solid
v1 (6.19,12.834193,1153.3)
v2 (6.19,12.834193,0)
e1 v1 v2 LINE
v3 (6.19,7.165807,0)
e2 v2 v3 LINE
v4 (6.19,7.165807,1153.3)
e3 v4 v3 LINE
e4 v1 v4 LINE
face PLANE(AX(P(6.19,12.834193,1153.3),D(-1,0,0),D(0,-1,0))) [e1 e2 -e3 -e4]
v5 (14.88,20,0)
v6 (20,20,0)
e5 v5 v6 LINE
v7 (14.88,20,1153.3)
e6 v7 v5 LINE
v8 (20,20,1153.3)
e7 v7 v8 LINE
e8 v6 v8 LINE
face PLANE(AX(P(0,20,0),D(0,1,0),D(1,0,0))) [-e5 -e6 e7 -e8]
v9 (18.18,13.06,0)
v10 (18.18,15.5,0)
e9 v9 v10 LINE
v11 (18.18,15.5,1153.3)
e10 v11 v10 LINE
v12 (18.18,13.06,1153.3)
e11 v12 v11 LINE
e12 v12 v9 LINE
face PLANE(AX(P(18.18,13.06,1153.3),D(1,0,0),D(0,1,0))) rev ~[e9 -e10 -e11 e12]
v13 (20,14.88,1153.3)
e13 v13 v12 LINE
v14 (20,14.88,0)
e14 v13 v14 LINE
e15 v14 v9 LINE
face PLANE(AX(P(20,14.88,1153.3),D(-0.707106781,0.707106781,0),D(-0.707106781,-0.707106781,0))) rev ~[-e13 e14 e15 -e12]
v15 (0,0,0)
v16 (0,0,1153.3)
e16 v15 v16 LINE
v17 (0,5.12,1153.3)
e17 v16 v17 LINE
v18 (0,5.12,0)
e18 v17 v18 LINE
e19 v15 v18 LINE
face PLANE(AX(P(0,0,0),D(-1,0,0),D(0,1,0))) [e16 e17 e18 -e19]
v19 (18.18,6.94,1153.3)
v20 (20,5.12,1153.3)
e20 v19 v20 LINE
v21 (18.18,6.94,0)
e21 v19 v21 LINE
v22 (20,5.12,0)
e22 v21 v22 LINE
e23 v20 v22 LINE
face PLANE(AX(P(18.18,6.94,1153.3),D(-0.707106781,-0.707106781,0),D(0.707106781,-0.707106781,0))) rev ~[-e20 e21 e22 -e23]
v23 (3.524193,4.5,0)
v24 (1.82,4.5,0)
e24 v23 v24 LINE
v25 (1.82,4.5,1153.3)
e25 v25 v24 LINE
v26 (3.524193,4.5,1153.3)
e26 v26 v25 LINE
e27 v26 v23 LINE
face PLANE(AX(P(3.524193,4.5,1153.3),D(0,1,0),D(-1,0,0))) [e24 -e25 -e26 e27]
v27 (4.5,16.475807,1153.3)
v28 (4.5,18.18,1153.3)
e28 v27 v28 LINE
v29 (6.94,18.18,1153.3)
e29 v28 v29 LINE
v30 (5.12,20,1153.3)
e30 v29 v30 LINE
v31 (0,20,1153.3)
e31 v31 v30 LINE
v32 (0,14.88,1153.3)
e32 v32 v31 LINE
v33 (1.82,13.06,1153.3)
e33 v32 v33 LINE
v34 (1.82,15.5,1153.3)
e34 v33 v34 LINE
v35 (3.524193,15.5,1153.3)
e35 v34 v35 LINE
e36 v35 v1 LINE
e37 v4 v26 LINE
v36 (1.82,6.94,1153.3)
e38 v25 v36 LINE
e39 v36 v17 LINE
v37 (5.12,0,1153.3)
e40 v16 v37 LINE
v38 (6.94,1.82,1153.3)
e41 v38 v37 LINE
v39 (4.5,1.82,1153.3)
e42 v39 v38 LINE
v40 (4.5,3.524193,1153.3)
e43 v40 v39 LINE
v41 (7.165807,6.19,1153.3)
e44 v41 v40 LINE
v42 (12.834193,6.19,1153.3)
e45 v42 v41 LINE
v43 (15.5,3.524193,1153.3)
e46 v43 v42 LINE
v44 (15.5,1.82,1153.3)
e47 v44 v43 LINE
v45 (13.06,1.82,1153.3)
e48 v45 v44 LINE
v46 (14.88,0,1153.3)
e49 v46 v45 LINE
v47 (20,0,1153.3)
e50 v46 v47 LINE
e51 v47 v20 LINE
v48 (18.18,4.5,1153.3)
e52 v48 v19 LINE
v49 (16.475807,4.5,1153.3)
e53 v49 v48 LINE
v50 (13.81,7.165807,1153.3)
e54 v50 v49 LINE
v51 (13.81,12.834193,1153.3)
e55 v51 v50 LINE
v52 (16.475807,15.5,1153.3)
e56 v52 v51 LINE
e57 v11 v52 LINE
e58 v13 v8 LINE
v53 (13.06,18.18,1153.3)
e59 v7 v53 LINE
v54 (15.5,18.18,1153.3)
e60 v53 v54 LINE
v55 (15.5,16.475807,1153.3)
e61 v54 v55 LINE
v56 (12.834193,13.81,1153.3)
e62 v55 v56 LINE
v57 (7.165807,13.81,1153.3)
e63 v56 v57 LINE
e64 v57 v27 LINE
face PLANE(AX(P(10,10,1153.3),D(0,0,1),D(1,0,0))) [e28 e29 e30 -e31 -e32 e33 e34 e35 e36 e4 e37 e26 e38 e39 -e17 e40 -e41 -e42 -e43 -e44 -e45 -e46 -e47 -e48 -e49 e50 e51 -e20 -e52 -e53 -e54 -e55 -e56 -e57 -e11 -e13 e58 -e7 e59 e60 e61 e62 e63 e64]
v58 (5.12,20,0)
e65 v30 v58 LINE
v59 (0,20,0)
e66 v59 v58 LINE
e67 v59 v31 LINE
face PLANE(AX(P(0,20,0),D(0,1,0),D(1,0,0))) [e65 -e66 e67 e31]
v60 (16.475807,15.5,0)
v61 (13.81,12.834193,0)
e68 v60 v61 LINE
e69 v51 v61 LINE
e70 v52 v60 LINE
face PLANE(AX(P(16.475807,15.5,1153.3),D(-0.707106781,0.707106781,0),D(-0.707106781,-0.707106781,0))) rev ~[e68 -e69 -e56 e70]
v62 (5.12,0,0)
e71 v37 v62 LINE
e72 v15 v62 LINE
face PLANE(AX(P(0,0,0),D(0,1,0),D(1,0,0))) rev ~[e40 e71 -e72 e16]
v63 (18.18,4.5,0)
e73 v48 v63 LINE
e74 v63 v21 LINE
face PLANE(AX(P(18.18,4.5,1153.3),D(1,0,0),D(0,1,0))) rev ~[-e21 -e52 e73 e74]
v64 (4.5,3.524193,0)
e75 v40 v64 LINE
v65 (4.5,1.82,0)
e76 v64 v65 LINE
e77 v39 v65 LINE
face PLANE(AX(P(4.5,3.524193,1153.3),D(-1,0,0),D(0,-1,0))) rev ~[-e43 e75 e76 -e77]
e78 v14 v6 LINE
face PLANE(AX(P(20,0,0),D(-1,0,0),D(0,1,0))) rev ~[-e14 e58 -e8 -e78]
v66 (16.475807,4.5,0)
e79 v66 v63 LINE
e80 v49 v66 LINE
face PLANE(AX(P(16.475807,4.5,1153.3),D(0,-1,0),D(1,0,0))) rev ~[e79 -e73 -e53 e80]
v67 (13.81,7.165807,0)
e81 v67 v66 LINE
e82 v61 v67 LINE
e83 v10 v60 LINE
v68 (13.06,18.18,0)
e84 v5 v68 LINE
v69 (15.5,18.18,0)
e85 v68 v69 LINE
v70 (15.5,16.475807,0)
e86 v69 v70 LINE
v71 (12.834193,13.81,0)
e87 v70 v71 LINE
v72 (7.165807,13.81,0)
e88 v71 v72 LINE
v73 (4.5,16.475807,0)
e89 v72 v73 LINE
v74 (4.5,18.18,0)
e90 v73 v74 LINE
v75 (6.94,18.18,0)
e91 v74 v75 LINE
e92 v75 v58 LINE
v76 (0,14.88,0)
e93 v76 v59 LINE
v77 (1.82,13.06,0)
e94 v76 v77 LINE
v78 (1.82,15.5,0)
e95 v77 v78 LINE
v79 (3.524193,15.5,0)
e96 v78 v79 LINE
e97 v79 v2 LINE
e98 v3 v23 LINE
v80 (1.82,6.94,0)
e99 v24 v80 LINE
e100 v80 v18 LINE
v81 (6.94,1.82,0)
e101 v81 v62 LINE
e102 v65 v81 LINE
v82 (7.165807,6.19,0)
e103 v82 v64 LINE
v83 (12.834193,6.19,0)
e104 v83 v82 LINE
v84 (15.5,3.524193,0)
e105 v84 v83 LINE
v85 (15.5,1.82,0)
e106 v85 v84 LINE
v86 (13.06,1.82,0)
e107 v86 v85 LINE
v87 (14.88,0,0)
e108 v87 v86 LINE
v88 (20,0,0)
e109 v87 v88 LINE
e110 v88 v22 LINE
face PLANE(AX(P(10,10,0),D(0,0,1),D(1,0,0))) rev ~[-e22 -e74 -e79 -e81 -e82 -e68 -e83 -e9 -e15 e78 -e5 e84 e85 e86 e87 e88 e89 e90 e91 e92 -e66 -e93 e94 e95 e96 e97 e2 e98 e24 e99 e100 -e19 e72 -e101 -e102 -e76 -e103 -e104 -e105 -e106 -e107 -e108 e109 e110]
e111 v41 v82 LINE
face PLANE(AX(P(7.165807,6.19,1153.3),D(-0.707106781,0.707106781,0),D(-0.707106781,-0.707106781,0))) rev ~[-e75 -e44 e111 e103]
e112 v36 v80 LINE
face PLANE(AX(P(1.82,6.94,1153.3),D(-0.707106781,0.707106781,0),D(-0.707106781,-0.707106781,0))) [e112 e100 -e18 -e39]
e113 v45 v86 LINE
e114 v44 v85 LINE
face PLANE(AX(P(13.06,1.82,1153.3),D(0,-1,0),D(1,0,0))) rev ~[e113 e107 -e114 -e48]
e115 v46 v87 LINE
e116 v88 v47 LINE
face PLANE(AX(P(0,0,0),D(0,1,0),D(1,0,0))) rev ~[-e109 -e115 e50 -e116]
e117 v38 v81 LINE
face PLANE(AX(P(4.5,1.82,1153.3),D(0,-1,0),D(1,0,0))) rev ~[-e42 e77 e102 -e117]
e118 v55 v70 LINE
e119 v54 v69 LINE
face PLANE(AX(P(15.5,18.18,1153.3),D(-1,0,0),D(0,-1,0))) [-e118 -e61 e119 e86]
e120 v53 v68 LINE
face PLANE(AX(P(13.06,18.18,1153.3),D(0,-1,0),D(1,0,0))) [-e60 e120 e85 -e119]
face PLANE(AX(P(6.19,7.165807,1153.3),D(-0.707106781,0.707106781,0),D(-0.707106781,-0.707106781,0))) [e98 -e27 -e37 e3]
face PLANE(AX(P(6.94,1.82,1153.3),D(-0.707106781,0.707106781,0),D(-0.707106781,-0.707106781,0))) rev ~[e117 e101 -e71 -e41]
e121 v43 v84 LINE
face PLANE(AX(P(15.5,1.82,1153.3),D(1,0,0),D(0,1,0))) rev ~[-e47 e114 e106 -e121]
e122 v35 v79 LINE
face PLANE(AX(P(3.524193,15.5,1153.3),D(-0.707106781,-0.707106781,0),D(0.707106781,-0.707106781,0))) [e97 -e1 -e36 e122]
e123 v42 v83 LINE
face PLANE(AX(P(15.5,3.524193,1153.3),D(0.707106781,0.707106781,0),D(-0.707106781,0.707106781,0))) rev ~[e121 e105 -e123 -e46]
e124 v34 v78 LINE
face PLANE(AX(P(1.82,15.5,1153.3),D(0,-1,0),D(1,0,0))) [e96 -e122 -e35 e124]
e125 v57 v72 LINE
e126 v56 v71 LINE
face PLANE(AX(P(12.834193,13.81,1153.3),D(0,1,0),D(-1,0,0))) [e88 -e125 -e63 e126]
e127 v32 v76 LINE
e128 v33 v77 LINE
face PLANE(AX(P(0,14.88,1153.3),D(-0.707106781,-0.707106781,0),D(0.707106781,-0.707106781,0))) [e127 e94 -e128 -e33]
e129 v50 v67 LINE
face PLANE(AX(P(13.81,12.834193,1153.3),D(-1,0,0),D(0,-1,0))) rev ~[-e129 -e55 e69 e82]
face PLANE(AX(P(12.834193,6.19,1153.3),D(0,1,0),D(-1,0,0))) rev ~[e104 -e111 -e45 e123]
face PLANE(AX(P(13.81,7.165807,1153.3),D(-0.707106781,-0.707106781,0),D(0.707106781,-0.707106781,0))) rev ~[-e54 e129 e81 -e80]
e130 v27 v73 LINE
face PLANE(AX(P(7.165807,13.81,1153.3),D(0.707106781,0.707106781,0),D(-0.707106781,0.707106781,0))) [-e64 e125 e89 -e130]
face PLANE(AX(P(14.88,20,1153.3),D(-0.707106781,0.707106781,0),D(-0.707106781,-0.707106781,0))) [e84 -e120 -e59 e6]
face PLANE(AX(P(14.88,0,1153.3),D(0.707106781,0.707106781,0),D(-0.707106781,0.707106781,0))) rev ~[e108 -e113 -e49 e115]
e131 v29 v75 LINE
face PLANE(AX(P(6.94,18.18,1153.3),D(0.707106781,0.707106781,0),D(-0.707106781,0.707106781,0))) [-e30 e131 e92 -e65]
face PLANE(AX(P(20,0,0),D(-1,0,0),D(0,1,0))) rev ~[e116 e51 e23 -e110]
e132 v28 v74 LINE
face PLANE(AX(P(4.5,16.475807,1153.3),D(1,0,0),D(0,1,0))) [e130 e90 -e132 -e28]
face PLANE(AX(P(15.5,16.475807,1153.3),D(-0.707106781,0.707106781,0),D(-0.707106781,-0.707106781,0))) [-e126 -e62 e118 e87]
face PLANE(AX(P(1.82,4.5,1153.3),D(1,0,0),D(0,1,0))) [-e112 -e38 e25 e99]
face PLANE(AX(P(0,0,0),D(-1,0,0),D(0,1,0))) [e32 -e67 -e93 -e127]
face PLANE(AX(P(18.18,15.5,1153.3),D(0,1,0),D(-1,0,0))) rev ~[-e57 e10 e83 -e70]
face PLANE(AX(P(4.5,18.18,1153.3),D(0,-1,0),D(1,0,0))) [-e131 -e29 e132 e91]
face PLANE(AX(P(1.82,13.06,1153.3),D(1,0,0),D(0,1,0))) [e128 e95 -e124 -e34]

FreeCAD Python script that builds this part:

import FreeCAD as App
import Part
import Sketcher
from FreeCAD import Vector

doc = App.newDocument("Part")
body = doc.addObject("PartDesign::Body", "Body")

sketch1 = body.newObject("Sketcher::SketchObject", "Sketch")
sketch1.AttachmentSupport = (doc.getObject("XY_Plane"), [""])
sketch1.MapMode = "FlatFace"
sketch1.addGeometry(Part.LineSegment(Vector(0, 20, 0), Vector(0, 0, 0)), False)
sketch1.addGeometry(Part.LineSegment(Vector(0, 0, 0), Vector(20, 0, 0)), False)
sketch1.addGeometry(Part.LineSegment(Vector(20, 0, 0), Vector(20, 20, 0)), False)
sketch1.addGeometry(Part.LineSegment(Vector(20, 20, 0), Vector(0, 20, 0)), False)
sketch1.addConstraint(Sketcher.Constraint("Coincident", 0, 2, 1, 1))
sketch1.addConstraint(Sketcher.Constraint("Coincident", 1, 2, 2, 1))
sketch1.addConstraint(Sketcher.Constraint("Coincident", 2, 2, 3, 1))
sketch1.addConstraint(Sketcher.Constraint("Coincident", 3, 2, 0, 1))
sketch1.addConstraint(Sketcher.Constraint("Vertical", 0))
sketch1.addConstraint(Sketcher.Constraint("Horizontal", 1))
sketch1.addConstraint(Sketcher.Constraint("Vertical", 2))
sketch1.addConstraint(Sketcher.Constraint("Horizontal", 3))
sketch1.addConstraint(Sketcher.Constraint("Coincident", 0, 2, -1, 1))
sketch1.addConstraint(Sketcher.Constraint("Equal", 3, 0))
sketch1.addConstraint(Sketcher.Constraint("DistanceX", 1, 1, 1, 2, 20.0))
pad1 = body.newObject("PartDesign::Pad", "Pad")
pad1.Profile = sketch1
pad1.Length = 1153.3

sketch2 = body.newObject("Sketcher::SketchObject", "Sketch001")
sketch2.AttachmentSupport = (doc.getObject("XY_Plane"), [""])
sketch2.MapMode = "FlatFace"
sketch2.AttachmentOffset = App.Placement(Vector(0, 0, 1153.3), App.Rotation())
sketch2.addGeometry(Part.LineSegment(Vector(6.9, 18.2, 0), Vector(4.5, 18.2, 0)), False)
sketch2.addGeometry(Part.LineSegment(Vector(4.5, 18.2, 0), Vector(4.5, 16.5, 0)), False)
sketch2.addGeometry(Part.LineSegment(Vector(4.5, 16.5, 0), Vector(7.2, 13.8, 0)), False)
sketch2.addGeometry(Part.LineSegment(Vector(7.2, 13.8, 0), Vector(12.8, 13.8, 0)), False)
sketch2.addGeometry(Part.LineSegment(Vector(12.8, 13.8, 0), Vector(15.5, 16.5, 0)), False)
sketch2.addGeometry(Part.LineSegment(Vector(15.5, 16.5, 0), Vector(15.5, 18.2, 0)), False)
sketch2.addGeometry(Part.LineSegment(Vector(15.5, 18.2, 0), Vector(13.1, 18.2, 0)), False)
sketch2.addGeometry(Part.LineSegment(Vector(13.1, 18.2, 0), Vector(14.9, 20, 0)), False)
sketch2.addGeometry(Part.LineSegment(Vector(14.9, 20, 0), Vector(5.1, 20, 0)), False)
sketch2.addGeometry(Part.LineSegment(Vector(5.1, 20, 0), Vector(6.9, 18.2, 0)), False)
sketch2.addGeometry(Part.LineSegment(Vector(14.9, 0, 0), Vector(13.1, 1.8, 0)), False)
sketch2.addGeometry(Part.LineSegment(Vector(13.1, 1.8, 0), Vector(15.5, 1.8, 0)), False)
sketch2.addGeometry(Part.LineSegment(Vector(15.5, 1.8, 0), Vector(15.5, 3.5, 0)), False)
sketch2.addGeometry(Part.LineSegment(Vector(15.5, 3.5, 0), Vector(12.8, 6.2, 0)), False)
sketch2.addGeometry(Part.LineSegment(Vector(12.8, 6.2, 0), Vector(7.2, 6.2, 0)), False)
sketch2.addGeometry(Part.LineSegment(Vector(7.2, 6.2, 0), Vector(4.5, 3.5, 0)), False)
sketch2.addGeometry(Part.LineSegment(Vector(4.5, 3.5, 0), Vector(4.5, 1.8, 0)), False)
sketch2.addGeometry(Part.LineSegment(Vector(4.5, 1.8, 0), Vector(6.9, 1.8, 0)), False)
sketch2.addGeometry(Part.LineSegment(Vector(6.9, 1.8, 0), Vector(5.1, 0, 0)), False)
sketch2.addGeometry(Part.LineSegment(Vector(5.1, 0, 0), Vector(14.9, 0, 0)), False)
sketch2.addGeometry(Part.LineSegment(Vector(1.8, 6.9, 0), Vector(1.8, 4.5, 0)), False)
sketch2.addGeometry(Part.LineSegment(Vector(1.8, 4.5, 0), Vector(3.5, 4.5, 0)), False)
sketch2.addGeometry(Part.LineSegment(Vector(3.5, 4.5, 0), Vector(6.2, 7.2, 0)), False)
sketch2.addGeometry(Part.LineSegment(Vector(6.2, 7.2, 0), Vector(6.2, 12.8, 0)), False)
sketch2.addGeometry(Part.LineSegment(Vector(6.2, 12.8, 0), Vector(3.5, 15.5, 0)), False)
sketch2.addGeometry(Part.LineSegment(Vector(3.5, 15.5, 0), Vector(1.8, 15.5, 0)), False)
sketch2.addGeometry(Part.LineSegment(Vector(1.8, 15.5, 0), Vector(1.8, 13.1, 0)), False)
sketch2.addGeometry(Part.LineSegment(Vector(1.8, 13.1, 0), Vector(0, 14.9, 0)), False)
sketch2.addGeometry(Part.LineSegment(Vector(0, 14.9, 0), Vector(0, 5.1, 0)), False)
sketch2.addGeometry(Part.LineSegment(Vector(0, 5.1, 0), Vector(1.8, 6.9, 0)), False)
sketch2.addGeometry(Part.LineSegment(Vector(20, 14.9, 0), Vector(18.2, 13.1, 0)), False)
sketch2.addGeometry(Part.LineSegment(Vector(18.2, 13.1, 0), Vector(18.2, 15.5, 0)), False)
sketch2.addGeometry(Part.LineSegment(Vector(18.2, 15.5, 0), Vector(16.5, 15.5, 0)), False)
sketch2.addGeometry(Part.LineSegment(Vector(16.5, 15.5, 0), Vector(13.8, 12.8, 0)), False)
sketch2.addGeometry(Part.LineSegment(Vector(13.8, 12.8, 0), Vector(13.8, 7.2, 0)), False)
sketch2.addGeometry(Part.LineSegment(Vector(13.8, 7.2, 0), Vector(16.5, 4.5, 0)), False)
sketch2.addGeometry(Part.LineSegment(Vector(16.5, 4.5, 0), Vector(18.2, 4.5, 0)), False)
sketch2.addGeometry(Part.LineSegment(Vector(18.2, 4.5, 0), Vector(18.2, 6.9, 0)), False)
sketch2.addGeometry(Part.LineSegment(Vector(18.2, 6.9, 0), Vector(20, 5.1, 0)), False)
sketch2.addGeometry(Part.LineSegment(Vector(20, 5.1, 0), Vector(20, 14.9, 0)), False)
sketch2.addConstraint(Sketcher.Constraint("Coincident", 0, 2, 1, 1))
sketch2.addConstraint(Sketcher.Constraint("Coincident", 1, 2, 2, 1))
sketch2.addConstraint(Sketcher.Constraint("Coincident", 2, 2, 3, 1))
sketch2.addConstraint(Sketcher.Constraint("Coincident", 3, 2, 4, 1))
sketch2.addConstraint(Sketcher.Constraint("Coincident", 4, 2, 5, 1))
sketch2.addConstraint(Sketcher.Constraint("Coincident", 5, 2, 6, 1))
sketch2.addConstraint(Sketcher.Constraint("Coincident", 6, 2, 7, 1))
sketch2.addConstraint(Sketcher.Constraint("Coincident", 7, 2, 8, 1))
sketch2.addConstraint(Sketcher.Constraint("Coincident", 8, 2, 9, 1))
sketch2.addConstraint(Sketcher.Constraint("Coincident", 9, 2, 0, 1))
sketch2.addConstraint(Sketcher.Constraint("Coincident", 10, 2, 11, 1))
sketch2.addConstraint(Sketcher.Constraint("Coincident", 11, 2, 12, 1))
sketch2.addConstraint(Sketcher.Constraint("Coincident", 12, 2, 13, 1))
sketch2.addConstraint(Sketcher.Constraint("Coincident", 13, 2, 14, 1))
sketch2.addConstraint(Sketcher.Constraint("Coincident", 14, 2, 15, 1))
sketch2.addConstraint(Sketcher.Constraint("Coincident", 15, 2, 16, 1))
sketch2.addConstraint(Sketcher.Constraint("Coincident", 16, 2, 17, 1))
sketch2.addConstraint(Sketcher.Constraint("Coincident", 17, 2, 18, 1))
sketch2.addConstraint(Sketcher.Constraint("Coincident", 18, 2, 19, 1))
sketch2.addConstraint(Sketcher.Constraint("Coincident", 19, 2, 10, 1))
sketch2.addConstraint(Sketcher.Constraint("Coincident", 20, 2, 21, 1))
sketch2.addConstraint(Sketcher.Constraint("Coincident", 21, 2, 22, 1))
sketch2.addConstraint(Sketcher.Constraint("Coincident", 22, 2, 23, 1))
sketch2.addConstraint(Sketcher.Constraint("Coincident", 23, 2, 24, 1))
sketch2.addConstraint(Sketcher.Constraint("Coincident", 24, 2, 25, 1))
sketch2.addConstraint(Sketcher.Constraint("Coincident", 25, 2, 26, 1))
sketch2.addConstraint(Sketcher.Constraint("Coincident", 26, 2, 27, 1))
sketch2.addConstraint(Sketcher.Constraint("Coincident", 27, 2, 28, 1))
sketch2.addConstraint(Sketcher.Constraint("Coincident", 28, 2, 29, 1))
sketch2.addConstraint(Sketcher.Constraint("Coincident", 29, 2, 20, 1))
sketch2.addConstraint(Sketcher.Constraint("Coincident", 30, 2, 31, 1))
sketch2.addConstraint(Sketcher.Constraint("Coincident", 31, 2, 32, 1))
sketch2.addConstraint(Sketcher.Constraint("Coincident", 32, 2, 33, 1))
sketch2.addConstraint(Sketcher.Constraint("Coincident", 33, 2, 34, 1))
sketch2.addConstraint(Sketcher.Constraint("Coincident", 34, 2, 35, 1))
sketch2.addConstraint(Sketcher.Constraint("Coincident", 35, 2, 36, 1))
sketch2.addConstraint(Sketcher.Constraint("Coincident", 36, 2, 37, 1))
sketch2.addConstraint(Sketcher.Constraint("Coincident", 37, 2, 38, 1))
sketch2.addConstraint(Sketcher.Constraint("Coincident", 38, 2, 39, 1))
sketch2.addConstraint(Sketcher.Constraint("Coincident", 39, 2, 30, 1))
sketch2.addConstraint(Sketcher.Constraint("Horizontal", 0))
sketch2.addConstraint(Sketcher.Constraint("Vertical", 1))
sketch2.addConstraint(Sketcher.Constraint("Horizontal", 3))
sketch2.addConstraint(Sketcher.Constraint("Vertical", 5))
sketch2.addConstraint(Sketcher.Constraint("Horizontal", 6))
sketch2.addConstraint(Sketcher.Constraint("Horizontal", 8))
sketch2.addConstraint(Sketcher.Constraint("Horizontal", 11))
sketch2.addConstraint(Sketcher.Constraint("Vertical", 12))
sketch2.addConstraint(Sketcher.Constraint("Horizontal", 14))
sketch2.addConstraint(Sketcher.Constraint("Vertical", 16))
sketch2.addConstraint(Sketcher.Constraint("Horizontal", 17))
sketch2.addConstraint(Sketcher.Constraint("Horizontal", 19))
sketch2.addConstraint(Sketcher.Constraint("Vertical", 20))
sketch2.addConstraint(Sketcher.Constraint("Horizontal", 21))
sketch2.addConstraint(Sketcher.Constraint("Vertical", 23))
sketch2.addConstraint(Sketcher.Constraint("Horizontal", 25))
sketch2.addConstraint(Sketcher.Constraint("Vertical", 26))
sketch2.addConstraint(Sketcher.Constraint("Vertical", 28))
sketch2.addConstraint(Sketcher.Constraint("Vertical", 31))
sketch2.addConstraint(Sketcher.Constraint("Horizontal", 32))
sketch2.addConstraint(Sketcher.Constraint("Vertical", 34))
sketch2.addConstraint(Sketcher.Constraint("Horizontal", 36))
sketch2.addConstraint(Sketcher.Constraint("Vertical", 37))
sketch2.addConstraint(Sketcher.Constraint("Vertical", 39))
sketch2.addConstraint(Sketcher.Constraint("PointOnObject", 18, 2, -1))
sketch2.addConstraint(Sketcher.Constraint("PointOnObject", 27, 2, -2))
sketch2.addConstraint(Sketcher.Constraint("Perpendicular", 2, 4))
sketch2.addConstraint(Sketcher.Constraint("Parallel", 4, 7))
sketch2.addConstraint(Sketcher.Constraint("Perpendicular", 7, 9))
sketch2.addConstraint(Sketcher.Constraint("Parallel", 9, 10))
sketch2.addConstraint(Sketcher.Constraint("Parallel", 10, 13))
sketch2.addConstraint(Sketcher.Constraint("Perpendicular", 13, 15))
sketch2.addConstraint(Sketcher.Constraint("Parallel", 15, 18))
sketch2.addConstraint(Sketcher.Constraint("Parallel", 18, 22))
sketch2.addConstraint(Sketcher.Constraint("Perpendicular", 22, 24))
sketch2.addConstraint(Sketcher.Constraint("Parallel", 24, 27))
sketch2.addConstraint(Sketcher.Constraint("Perpendicular", 27, 29))
sketch2.addConstraint(Sketcher.Constraint("Parallel", 29, 30))
sketch2.addConstraint(Sketcher.Constraint("Parallel", 30, 33))
sketch2.addConstraint(Sketcher.Constraint("Perpendicular", 33, 35))
sketch2.addConstraint(Sketcher.Constraint("Parallel", 35, 38))
sketch2.addConstraint(Sketcher.Constraint("Horizontal", 1, 2, 4, 2))
sketch2.addConstraint(Sketcher.Constraint("Horizontal", 0, 2, 5, 2))
sketch2.addConstraint(Sketcher.Constraint("Horizontal", 12, 2, 15, 2))
sketch2.addConstraint(Sketcher.Constraint("Horizontal", 11, 2, 16, 2))
sketch2.addConstraint(Sketcher.Constraint("Horizontal", 26, 2, 30, 2))
sketch2.addConstraint(Sketcher.Constraint("Horizontal", 25, 2, 31, 2))
sketch2.addConstraint(Sketcher.Constraint("Horizontal", 23, 2, 33, 2))
sketch2.addConstraint(Sketcher.Constraint("Horizontal", 22, 2, 34, 2))
sketch2.addConstraint(Sketcher.Constraint("Horizontal", 21, 2, 35, 2))
sketch2.addConstraint(Sketcher.Constraint("Horizontal", 29, 2, 37, 2))
sketch2.addConstraint(Sketcher.Constraint("Horizontal", 28, 2, 38, 2))
sketch2.addConstraint(Sketcher.Constraint("Horizontal", 27, 2, 39, 2))
sketch2.addConstraint(Sketcher.Constraint("Vertical", 6, 2, 10, 2))
sketch2.addConstraint(Sketcher.Constraint("Vertical", 5, 2, 11, 2))
sketch2.addConstraint(Sketcher.Constraint("Vertical", 3, 2, 13, 2))
sketch2.addConstraint(Sketcher.Constraint("Vertical", 2, 2, 14, 2))
sketch2.addConstraint(Sketcher.Constraint("Vertical", 1, 2, 15, 2))
sketch2.addConstraint(Sketcher.Constraint("Vertical", 9, 2, 17, 2))
sketch2.addConstraint(Sketcher.Constraint("Vertical", 8, 2, 18, 2))
sketch2.addConstraint(Sketcher.Constraint("Vertical", 21, 2, 24, 2))
sketch2.addConstraint(Sketcher.Constraint("Vertical", 20, 2, 25, 2))
sketch2.addConstraint(Sketcher.Constraint("Equal", 0, 6))
sketch2.addConstraint(Sketcher.Constraint("Equal", 25, 32))
sketch2.addConstraint(Sketcher.Constraint("Equal", 36, 1))
sketch2.addConstraint(Sketcher.Constraint("Equal", 5, 12))
sketch2.addConstraint(Sketcher.Constraint("Equal", 17, 20))
sketch2.addConstraint(Sketcher.Constraint("Equal", 14, 23))
sketch2.addConstraint(Sketcher.Constraint("Equal", 20, 26))
sketch2.addConstraint(Sketcher.Constraint("Equal", 19, 28))
sketch2.addConstraint(Sketcher.Constraint("Equal", 15, 22))
sketch2.addConstraint(Sketcher.Constraint("DistanceY", -1, 1, 7, 2, 20.0))
sketch2.addConstraint(Sketcher.Constraint("DistanceX", -1, 1, 38, 2, 20.0))
sketch2.addConstraint(Sketcher.Constraint("DistanceX", 1, 2, 4, 2, 11.0))
sketch2.addConstraint(Sketcher.Constraint("DistanceX", 0, 2, 0, 1, 2.44))
sketch2.addConstraint(Sketcher.Constraint("DistanceX", 8, 2, 8, 1, 9.76))
sketch2.addConstraint(Sketcher.Constraint("DistanceX", -1, 1, 0, 2, 4.5))
sketch2.addConstraint(Sketcher.Constraint("DistanceY", -1, 1, 20, 2, 4.5))
sketch2.addConstraint(Sketcher.Constraint("DistanceY", -1, 1, 2, 2, 13.81))
sketch2.addConstraint(Sketcher.Constraint("Distance", 2, 3.770021))
pocket1 = body.newObject("PartDesign::Pocket", "Pocket")
pocket1.Profile = sketch2
pocket1.Type = "ThroughAll"

doc.recompute()
